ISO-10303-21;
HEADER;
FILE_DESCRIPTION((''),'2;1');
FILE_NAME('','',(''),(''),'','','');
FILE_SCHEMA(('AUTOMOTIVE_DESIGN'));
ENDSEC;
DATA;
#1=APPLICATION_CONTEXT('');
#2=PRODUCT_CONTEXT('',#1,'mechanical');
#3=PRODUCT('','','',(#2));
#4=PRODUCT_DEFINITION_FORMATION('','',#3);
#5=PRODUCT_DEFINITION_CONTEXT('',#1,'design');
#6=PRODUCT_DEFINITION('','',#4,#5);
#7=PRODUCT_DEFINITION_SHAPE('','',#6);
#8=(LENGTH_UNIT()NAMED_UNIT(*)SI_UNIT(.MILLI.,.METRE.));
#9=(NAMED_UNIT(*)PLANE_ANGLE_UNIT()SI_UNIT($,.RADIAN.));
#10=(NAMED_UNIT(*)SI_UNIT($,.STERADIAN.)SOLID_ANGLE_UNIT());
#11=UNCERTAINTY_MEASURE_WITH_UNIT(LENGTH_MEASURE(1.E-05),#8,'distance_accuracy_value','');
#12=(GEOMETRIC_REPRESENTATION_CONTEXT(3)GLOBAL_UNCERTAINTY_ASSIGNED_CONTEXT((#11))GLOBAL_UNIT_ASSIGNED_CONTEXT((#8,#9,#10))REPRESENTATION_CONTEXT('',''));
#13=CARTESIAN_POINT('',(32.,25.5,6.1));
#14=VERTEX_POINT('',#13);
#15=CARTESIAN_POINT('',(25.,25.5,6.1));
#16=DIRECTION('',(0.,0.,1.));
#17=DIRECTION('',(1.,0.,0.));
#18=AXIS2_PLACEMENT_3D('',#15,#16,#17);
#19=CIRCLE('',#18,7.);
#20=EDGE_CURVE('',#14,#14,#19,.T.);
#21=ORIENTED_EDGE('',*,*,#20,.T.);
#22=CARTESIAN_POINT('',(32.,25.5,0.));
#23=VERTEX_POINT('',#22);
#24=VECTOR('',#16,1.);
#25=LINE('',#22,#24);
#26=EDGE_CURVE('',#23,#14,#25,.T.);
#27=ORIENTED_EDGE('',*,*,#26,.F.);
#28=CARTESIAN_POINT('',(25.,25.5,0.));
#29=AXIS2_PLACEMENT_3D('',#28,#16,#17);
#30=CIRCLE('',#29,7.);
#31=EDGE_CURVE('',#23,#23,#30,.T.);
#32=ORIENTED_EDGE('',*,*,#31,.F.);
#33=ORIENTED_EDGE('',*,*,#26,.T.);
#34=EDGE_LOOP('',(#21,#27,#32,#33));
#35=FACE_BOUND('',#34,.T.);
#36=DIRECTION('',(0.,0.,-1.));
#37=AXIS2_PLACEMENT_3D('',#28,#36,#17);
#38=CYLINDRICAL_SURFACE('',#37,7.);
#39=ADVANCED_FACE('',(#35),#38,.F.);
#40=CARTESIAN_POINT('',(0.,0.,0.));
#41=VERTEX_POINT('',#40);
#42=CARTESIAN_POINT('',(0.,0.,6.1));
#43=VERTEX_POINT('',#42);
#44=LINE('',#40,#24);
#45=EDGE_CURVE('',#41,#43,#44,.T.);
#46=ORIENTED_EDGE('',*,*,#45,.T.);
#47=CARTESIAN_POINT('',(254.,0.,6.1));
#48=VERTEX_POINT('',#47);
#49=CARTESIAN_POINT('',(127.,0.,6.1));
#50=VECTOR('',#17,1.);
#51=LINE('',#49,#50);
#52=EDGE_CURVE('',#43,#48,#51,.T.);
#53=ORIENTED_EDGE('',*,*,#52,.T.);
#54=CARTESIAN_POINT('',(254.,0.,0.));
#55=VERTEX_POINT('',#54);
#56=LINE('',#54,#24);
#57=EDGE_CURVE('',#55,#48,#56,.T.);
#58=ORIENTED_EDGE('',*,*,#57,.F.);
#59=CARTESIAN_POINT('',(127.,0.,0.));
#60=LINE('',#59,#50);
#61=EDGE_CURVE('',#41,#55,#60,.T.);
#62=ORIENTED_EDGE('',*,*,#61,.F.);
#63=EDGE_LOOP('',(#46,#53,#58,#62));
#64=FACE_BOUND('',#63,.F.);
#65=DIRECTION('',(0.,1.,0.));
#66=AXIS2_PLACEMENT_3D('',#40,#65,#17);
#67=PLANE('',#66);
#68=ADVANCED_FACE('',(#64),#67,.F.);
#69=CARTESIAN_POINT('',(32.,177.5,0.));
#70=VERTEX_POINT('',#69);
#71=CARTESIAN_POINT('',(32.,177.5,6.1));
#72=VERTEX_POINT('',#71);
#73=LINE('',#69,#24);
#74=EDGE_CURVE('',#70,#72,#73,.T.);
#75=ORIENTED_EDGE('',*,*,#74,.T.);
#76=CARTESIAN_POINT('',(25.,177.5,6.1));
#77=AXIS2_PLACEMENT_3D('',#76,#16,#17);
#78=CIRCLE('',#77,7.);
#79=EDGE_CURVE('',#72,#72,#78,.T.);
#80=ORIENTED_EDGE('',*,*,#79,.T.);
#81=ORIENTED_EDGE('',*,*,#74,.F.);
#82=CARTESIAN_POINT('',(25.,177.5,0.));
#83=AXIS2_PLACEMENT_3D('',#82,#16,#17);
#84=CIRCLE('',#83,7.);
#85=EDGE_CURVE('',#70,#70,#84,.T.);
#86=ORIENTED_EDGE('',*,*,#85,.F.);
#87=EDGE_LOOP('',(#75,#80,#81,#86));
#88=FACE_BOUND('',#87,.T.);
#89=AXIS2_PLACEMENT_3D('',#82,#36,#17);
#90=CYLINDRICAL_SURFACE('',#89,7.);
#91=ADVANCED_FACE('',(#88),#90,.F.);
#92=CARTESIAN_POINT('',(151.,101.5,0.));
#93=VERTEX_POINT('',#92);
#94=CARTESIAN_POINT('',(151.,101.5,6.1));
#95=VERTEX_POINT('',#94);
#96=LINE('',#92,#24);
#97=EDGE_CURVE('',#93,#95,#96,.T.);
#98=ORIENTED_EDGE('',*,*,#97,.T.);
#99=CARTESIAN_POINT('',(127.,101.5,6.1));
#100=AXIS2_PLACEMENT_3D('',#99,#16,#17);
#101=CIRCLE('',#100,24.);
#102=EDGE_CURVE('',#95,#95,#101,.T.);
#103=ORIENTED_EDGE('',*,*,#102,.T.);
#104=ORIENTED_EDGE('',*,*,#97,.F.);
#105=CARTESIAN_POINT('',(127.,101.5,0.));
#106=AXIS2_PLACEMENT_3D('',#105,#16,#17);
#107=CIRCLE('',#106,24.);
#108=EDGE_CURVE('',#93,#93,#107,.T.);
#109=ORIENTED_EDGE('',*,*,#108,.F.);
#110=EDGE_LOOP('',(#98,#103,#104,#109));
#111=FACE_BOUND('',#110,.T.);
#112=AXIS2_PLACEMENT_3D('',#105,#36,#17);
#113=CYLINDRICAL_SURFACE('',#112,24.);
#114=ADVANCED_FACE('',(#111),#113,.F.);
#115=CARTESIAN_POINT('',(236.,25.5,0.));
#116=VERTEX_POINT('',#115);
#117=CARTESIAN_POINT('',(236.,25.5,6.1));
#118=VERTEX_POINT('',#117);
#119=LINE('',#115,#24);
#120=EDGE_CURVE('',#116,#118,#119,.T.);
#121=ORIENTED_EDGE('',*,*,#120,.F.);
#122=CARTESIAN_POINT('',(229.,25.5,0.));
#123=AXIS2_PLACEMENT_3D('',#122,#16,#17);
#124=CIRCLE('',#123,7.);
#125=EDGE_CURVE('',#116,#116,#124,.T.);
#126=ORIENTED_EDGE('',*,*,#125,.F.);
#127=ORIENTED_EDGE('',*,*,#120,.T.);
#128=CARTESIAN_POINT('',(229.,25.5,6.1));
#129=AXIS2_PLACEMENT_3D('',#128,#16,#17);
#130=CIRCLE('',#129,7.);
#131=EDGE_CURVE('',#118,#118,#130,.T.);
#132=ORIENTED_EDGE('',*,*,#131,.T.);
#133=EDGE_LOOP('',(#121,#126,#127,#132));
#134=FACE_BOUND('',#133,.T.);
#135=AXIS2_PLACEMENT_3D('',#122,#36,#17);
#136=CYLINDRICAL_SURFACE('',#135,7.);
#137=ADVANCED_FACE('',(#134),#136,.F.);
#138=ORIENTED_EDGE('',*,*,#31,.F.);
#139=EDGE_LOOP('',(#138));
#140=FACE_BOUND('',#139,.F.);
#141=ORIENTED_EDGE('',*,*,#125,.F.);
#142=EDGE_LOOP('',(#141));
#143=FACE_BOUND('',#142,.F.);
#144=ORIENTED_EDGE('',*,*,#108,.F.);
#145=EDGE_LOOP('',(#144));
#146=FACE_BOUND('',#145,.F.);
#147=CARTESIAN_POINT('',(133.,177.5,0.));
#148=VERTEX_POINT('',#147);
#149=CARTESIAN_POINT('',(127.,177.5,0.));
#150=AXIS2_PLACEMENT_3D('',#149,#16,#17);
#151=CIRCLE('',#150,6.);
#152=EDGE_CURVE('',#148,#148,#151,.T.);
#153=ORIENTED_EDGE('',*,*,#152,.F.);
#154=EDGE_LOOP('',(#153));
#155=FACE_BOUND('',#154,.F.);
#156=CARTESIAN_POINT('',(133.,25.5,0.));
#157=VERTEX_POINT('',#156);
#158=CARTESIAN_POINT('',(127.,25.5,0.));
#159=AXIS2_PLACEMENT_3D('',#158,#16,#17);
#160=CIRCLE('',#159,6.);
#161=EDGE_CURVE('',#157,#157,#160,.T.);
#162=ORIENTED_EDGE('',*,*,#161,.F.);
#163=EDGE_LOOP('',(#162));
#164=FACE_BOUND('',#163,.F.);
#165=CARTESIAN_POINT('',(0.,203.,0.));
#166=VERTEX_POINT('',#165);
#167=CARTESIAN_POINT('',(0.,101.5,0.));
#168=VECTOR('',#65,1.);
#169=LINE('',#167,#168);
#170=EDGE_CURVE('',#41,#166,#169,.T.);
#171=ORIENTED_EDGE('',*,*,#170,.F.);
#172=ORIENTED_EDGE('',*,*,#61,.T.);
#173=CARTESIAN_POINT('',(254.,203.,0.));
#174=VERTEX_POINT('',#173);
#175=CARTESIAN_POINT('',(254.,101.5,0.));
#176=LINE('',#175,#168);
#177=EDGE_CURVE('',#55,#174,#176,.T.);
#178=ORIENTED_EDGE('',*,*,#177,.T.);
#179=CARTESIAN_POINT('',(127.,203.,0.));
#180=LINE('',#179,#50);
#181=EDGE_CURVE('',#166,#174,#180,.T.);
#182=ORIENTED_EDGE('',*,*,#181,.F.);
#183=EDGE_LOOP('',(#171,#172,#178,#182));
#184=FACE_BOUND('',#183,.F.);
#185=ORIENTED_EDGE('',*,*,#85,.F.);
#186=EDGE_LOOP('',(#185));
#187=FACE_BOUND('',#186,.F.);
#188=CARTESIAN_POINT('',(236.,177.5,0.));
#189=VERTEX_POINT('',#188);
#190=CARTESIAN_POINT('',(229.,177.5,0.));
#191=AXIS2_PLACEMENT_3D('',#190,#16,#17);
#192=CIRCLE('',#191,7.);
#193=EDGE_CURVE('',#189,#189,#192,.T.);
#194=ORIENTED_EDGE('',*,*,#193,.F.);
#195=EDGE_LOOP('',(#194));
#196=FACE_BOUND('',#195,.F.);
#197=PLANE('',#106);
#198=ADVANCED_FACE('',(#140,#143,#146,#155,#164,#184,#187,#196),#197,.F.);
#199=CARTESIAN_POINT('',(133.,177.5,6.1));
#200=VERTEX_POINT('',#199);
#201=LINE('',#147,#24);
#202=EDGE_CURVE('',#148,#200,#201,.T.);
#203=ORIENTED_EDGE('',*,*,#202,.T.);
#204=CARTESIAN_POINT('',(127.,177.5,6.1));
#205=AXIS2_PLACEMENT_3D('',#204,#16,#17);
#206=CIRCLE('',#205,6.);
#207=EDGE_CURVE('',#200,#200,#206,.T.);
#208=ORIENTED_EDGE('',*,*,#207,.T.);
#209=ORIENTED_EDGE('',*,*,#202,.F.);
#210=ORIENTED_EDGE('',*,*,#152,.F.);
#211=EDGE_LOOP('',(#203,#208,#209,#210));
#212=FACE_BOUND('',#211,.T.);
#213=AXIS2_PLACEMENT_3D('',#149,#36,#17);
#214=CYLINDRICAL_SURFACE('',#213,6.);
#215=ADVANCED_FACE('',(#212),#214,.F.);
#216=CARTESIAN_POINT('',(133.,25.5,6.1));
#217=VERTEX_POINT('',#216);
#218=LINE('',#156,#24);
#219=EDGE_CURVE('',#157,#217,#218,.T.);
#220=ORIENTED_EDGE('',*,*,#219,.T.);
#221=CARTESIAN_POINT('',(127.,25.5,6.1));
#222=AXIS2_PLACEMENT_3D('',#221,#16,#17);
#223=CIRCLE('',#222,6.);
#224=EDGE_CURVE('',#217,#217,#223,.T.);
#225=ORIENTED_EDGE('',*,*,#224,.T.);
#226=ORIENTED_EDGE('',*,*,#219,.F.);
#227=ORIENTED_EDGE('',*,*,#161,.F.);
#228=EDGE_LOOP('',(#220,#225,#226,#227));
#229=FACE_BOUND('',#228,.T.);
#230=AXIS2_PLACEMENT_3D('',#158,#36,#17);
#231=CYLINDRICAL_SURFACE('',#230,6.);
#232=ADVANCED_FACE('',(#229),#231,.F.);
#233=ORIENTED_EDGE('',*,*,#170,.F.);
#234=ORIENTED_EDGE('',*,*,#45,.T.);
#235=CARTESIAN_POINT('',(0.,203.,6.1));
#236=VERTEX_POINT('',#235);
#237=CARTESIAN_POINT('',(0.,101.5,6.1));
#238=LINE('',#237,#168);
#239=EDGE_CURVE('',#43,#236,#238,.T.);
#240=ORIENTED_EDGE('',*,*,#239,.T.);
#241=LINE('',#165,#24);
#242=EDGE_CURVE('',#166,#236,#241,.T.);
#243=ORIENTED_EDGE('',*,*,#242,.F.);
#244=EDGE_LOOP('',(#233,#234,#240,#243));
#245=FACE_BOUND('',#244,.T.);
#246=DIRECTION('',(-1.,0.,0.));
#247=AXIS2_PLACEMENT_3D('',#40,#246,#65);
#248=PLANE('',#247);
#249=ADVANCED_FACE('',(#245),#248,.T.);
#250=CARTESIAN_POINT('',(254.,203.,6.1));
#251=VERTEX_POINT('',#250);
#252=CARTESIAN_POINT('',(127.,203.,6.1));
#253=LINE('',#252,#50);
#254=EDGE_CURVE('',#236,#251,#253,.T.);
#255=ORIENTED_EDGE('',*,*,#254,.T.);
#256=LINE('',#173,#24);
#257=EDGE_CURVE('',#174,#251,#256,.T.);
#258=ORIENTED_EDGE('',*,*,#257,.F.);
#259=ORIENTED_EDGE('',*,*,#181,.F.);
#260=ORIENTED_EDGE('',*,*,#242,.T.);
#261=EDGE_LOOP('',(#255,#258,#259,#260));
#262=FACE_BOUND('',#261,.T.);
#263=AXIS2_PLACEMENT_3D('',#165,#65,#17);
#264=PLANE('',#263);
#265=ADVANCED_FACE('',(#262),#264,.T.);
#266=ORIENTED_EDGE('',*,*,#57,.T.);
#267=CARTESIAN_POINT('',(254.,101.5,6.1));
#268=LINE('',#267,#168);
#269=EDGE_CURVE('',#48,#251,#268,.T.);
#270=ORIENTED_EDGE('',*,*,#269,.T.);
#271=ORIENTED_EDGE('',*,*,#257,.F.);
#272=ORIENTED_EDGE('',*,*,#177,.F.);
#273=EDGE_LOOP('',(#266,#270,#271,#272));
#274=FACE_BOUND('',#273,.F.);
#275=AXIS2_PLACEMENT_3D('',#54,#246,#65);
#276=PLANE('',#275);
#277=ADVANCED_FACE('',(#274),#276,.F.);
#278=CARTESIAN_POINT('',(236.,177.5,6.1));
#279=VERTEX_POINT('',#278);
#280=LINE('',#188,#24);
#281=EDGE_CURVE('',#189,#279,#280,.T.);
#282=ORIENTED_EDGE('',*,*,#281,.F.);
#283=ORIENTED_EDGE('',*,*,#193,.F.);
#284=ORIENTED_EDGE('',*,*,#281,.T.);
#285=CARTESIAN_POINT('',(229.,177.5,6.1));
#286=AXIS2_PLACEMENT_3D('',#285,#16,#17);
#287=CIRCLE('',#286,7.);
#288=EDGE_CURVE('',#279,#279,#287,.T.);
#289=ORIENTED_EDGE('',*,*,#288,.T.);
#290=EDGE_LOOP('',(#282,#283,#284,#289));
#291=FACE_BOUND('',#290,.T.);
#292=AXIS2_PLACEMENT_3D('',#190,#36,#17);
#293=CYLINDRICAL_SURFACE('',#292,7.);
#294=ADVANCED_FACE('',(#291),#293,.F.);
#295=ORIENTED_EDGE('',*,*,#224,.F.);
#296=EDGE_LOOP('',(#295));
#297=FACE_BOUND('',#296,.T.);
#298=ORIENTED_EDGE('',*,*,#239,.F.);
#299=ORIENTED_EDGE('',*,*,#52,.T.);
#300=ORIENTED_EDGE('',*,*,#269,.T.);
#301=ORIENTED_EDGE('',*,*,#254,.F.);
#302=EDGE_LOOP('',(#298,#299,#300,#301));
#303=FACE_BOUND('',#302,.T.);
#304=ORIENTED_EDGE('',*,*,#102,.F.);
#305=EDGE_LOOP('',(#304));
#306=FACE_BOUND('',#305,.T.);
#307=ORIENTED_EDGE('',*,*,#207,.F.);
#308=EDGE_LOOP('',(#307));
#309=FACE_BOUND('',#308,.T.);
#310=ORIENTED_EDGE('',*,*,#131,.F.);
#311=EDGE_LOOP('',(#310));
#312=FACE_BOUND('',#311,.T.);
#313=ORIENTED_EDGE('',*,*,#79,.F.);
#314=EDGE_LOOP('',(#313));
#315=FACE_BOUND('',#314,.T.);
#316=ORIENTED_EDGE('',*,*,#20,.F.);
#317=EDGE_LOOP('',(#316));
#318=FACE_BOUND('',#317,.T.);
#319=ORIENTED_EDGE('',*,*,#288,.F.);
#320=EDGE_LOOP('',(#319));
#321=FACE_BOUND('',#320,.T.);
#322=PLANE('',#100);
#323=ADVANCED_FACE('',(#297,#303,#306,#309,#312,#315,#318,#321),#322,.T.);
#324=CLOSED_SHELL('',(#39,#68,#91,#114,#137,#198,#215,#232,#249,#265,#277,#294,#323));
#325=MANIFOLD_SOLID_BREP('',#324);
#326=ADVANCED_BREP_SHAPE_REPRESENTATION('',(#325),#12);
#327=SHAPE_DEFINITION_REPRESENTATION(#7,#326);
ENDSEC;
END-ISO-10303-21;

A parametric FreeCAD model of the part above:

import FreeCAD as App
import Part
import Sketcher

V = App.Vector
Q = App.Units.Quantity

doc = App.newDocument("Part")
body = doc.addObject("PartDesign::Body", "Body")

# Sketch on XY plane
sketch1 = body.newObject("Sketcher::SketchObject", "Sketch")
sketch1.AttachmentSupport = (doc.getObject("XY_Plane"), [""])
sketch1.MapMode = "FlatFace"
sketch1.addGeometry([
    Part.LineSegment(V(0, 203, 0), V(0, 0, 0)),  # 0
    Part.LineSegment(V(0, 0, 0), V(254, 0, 0)),  # 1
    Part.LineSegment(V(254, 0, 0), V(254, 203, 0)),  # 2
    Part.LineSegment(V(254, 203, 0), V(0, 203, 0)),  # 3
    Part.Circle(V(25, 25.5, 0), V(0, 0, 1), 7),  # 4
    Part.Circle(V(127, 25.5, 0), V(0, 0, 1), 6),  # 5
    Part.Circle(V(229, 25.5, 0), V(0, 0, 1), 7),  # 6
    Part.Circle(V(25, 177.5, 0), V(0, 0, 1), 7),  # 7
    Part.Circle(V(127, 101.5, 0), V(0, 0, 1), 24),  # 8
    Part.Circle(V(127, 177.5, 0), V(0, 0, 1), 6),  # 9
    Part.Circle(V(229, 177.5, 0), V(0, 0, 1), 7),  # 10
], False)
sketch1.addConstraint([
    Sketcher.Constraint("Coincident", 0, 2, 1, 1),
    Sketcher.Constraint("Coincident", 1, 2, 2, 1),
    Sketcher.Constraint("Coincident", 2, 2, 3, 1),
    Sketcher.Constraint("Coincident", 3, 2, 0, 1),
    Sketcher.Constraint("Vertical", 0),
    Sketcher.Constraint("Horizontal", 1),
    Sketcher.Constraint("Vertical", 2),
    Sketcher.Constraint("Horizontal", 3),
    Sketcher.Constraint("Coincident", 0, 2, -1, 1),
    Sketcher.Constraint("Equal", 4, 6),
    Sketcher.Constraint("Equal", 6, 7),
    Sketcher.Constraint("Equal", 5, 9),
    Sketcher.Constraint("Equal", 7, 10),
    Sketcher.Constraint("Horizontal", 4, 3, 5, 3),
    Sketcher.Constraint("Horizontal", 5, 3, 6, 3),
    Sketcher.Constraint("Horizontal", 7, 3, 9, 3),
    Sketcher.Constraint("Horizontal", 9, 3, 10, 3),
    Sketcher.Constraint("Vertical", 4, 3, 7, 3),
    Sketcher.Constraint("Vertical", 5, 3, 8, 3),
    Sketcher.Constraint("Vertical", 8, 3, 9, 3),
    Sketcher.Constraint("Vertical", 6, 3, 10, 3),
    Sketcher.Constraint("Diameter", 4, Q("14 mm")),
    Sketcher.Constraint("Diameter", 5, Q("12 mm")),
    Sketcher.Constraint("Diameter", 8, Q("48 mm")),
    Sketcher.Constraint("DistanceX", 1, 1, 1, 2, Q("254 mm")),
    Sketcher.Constraint("DistanceY", 0, 2, 0, 1, Q("203 mm")),
    Sketcher.Constraint("DistanceX", -1, 1, 4, 3, Q("25 mm")),
    Sketcher.Constraint("DistanceX", -1, 1, 5, 3, Q("127 mm")),
    Sketcher.Constraint("DistanceX", -1, 1, 6, 3, Q("229 mm")),
    Sketcher.Constraint("DistanceY", 4, 3, 7, 3, Q("152 mm")),
    Sketcher.Constraint("DistanceY", 5, 3, 8, 3, Q("76 mm")),
    Sketcher.Constraint("DistanceY", -1, 1, 4, 3, Q("25.5 mm")),
])
pad1 = body.newObject("PartDesign::Pad", "Pad")
pad1.Profile = sketch1
pad1.Length = 6.1

doc.recompute()
